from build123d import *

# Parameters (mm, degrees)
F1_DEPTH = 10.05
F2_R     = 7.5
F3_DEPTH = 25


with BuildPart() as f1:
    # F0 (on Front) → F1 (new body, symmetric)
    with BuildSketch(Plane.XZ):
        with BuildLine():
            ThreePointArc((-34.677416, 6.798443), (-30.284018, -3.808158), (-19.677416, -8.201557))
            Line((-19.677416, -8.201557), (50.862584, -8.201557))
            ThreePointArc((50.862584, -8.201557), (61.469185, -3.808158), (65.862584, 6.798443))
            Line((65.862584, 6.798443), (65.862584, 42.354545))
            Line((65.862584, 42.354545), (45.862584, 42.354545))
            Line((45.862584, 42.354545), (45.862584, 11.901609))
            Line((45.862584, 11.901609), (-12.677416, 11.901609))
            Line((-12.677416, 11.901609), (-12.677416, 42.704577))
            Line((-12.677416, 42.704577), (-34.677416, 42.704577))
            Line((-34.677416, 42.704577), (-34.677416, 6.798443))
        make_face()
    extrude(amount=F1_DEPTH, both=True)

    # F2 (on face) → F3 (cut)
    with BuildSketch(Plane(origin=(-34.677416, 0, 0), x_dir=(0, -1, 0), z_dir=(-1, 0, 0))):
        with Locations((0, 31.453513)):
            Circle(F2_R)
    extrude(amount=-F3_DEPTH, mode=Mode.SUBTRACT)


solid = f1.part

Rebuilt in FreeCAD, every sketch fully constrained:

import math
import FreeCAD as App
import Part
import Sketcher

V = App.Vector

doc = App.newDocument("Part")
body = doc.addObject("PartDesign::Body", "Body")

# Sketch on XZ plane
sketch1 = body.newObject("Sketcher::SketchObject", "Sketch")
sketch1.AttachmentSupport = (doc.getObject("XZ_Plane"), [""])
sketch1.MapMode = "FlatFace"
sketch1.addGeometry([
    Part.ArcOfCircle(Part.Circle(V(-20, 7, 0), V(0, 0, 1), 15), math.radians(-180), math.radians(-90)),  # 0
    Part.LineSegment(V(-20, -8, 0), V(51, -8, 0)),  # 1
    Part.ArcOfCircle(Part.Circle(V(51, 7, 0), V(0, 0, 1), 15), math.radians(-90), math.radians(0)),  # 2
    Part.LineSegment(V(66, 7, 0), V(66, 42, 0)),  # 3
    Part.LineSegment(V(66, 42, 0), V(46, 42, 0)),  # 4
    Part.LineSegment(V(46, 42, 0), V(46, 12, 0)),  # 5
    Part.LineSegment(V(46, 12, 0), V(-13, 12, 0)),  # 6
    Part.LineSegment(V(-13, 12, 0), V(-13, 43, 0)),  # 7
    Part.LineSegment(V(-13, 43, 0), V(-35, 43, 0)),  # 8
    Part.LineSegment(V(-35, 43, 0), V(-35, 7, 0)),  # 9
], False)
sketch1.addConstraint([
    Sketcher.Constraint("Tangent", 0, 2, 1, 1),
    Sketcher.Constraint("Tangent", 1, 2, 2, 1),
    Sketcher.Constraint("Tangent", 2, 2, 3, 1),
    Sketcher.Constraint("Coincident", 3, 2, 4, 1),
    Sketcher.Constraint("Coincident", 4, 2, 5, 1),
    Sketcher.Constraint("Coincident", 5, 2, 6, 1),
    Sketcher.Constraint("Coincident", 6, 2, 7, 1),
    Sketcher.Constraint("Coincident", 7, 2, 8, 1),
    Sketcher.Constraint("Coincident", 8, 2, 9, 1),
    Sketcher.Constraint("Tangent", 9, 2, 0, 1),
    Sketcher.Constraint("Horizontal", 1),
    Sketcher.Constraint("Vertical", 3),
    Sketcher.Constraint("Horizontal", 4),
    Sketcher.Constraint("Vertical", 5),
    Sketcher.Constraint("Horizontal", 6),
    Sketcher.Constraint("Vertical", 7),
    Sketcher.Constraint("Horizontal", 8),
    Sketcher.Constraint("Vertical", 9),
    Sketcher.Constraint("Equal", 0, 2),
    Sketcher.Constraint("Radius", 0, 15.000001),
    Sketcher.Constraint("DistanceX", 4, 2, 4, 1, 20.0),
    Sketcher.Constraint("DistanceX", 8, 2, 8, 1, 22.0),
    Sketcher.Constraint("DistanceX", 1, 1, 1, 2, 70.54),
    Sketcher.Constraint("DistanceY", 7, 1, 7, 2, 30.802968),
    Sketcher.Constraint("DistanceY", 2, 3, 3, 2, 35.5561),
    Sketcher.Constraint("DistanceY", 5, 2, 5, 1, 30.452936),
    Sketcher.Constraint("DistanceX", -1, 1, 2, 3, 50.862582),
    Sketcher.Constraint("DistanceY", -1, 1, 5, 2, 11.901609),
])
pad1 = body.newObject("PartDesign::Pad", "Pad")
pad1.Profile = sketch1
pad1.Length = 20.1
pad1.Midplane = True

# Sketch on YZ plane
sketch2 = body.newObject("Sketcher::SketchObject", "Sketch001")
sketch2.AttachmentSupport = (doc.getObject("YZ_Plane"), [""])
sketch2.MapMode = "FlatFace"
sketch2.AttachmentOffset = App.Placement(V(0, 0, -34.677416), App.Rotation())
sketch2.addGeometry(Part.Circle(V(0, 31, 0), V(0, 0, 1), 8), False)
sketch2.addConstraint([
    Sketcher.Constraint("PointOnObject", 0, 3, -2),
    Sketcher.Constraint("Diameter", 0, 15.0),
    Sketcher.Constraint("DistanceY", -1, 1, 0, 3, 31.453513),
])
pocket1 = body.newObject("PartDesign::Pocket", "Pocket")
pocket1.Profile = sketch2
pocket1.Length = 25
pocket1.Reversed = True

doc.recompute()
